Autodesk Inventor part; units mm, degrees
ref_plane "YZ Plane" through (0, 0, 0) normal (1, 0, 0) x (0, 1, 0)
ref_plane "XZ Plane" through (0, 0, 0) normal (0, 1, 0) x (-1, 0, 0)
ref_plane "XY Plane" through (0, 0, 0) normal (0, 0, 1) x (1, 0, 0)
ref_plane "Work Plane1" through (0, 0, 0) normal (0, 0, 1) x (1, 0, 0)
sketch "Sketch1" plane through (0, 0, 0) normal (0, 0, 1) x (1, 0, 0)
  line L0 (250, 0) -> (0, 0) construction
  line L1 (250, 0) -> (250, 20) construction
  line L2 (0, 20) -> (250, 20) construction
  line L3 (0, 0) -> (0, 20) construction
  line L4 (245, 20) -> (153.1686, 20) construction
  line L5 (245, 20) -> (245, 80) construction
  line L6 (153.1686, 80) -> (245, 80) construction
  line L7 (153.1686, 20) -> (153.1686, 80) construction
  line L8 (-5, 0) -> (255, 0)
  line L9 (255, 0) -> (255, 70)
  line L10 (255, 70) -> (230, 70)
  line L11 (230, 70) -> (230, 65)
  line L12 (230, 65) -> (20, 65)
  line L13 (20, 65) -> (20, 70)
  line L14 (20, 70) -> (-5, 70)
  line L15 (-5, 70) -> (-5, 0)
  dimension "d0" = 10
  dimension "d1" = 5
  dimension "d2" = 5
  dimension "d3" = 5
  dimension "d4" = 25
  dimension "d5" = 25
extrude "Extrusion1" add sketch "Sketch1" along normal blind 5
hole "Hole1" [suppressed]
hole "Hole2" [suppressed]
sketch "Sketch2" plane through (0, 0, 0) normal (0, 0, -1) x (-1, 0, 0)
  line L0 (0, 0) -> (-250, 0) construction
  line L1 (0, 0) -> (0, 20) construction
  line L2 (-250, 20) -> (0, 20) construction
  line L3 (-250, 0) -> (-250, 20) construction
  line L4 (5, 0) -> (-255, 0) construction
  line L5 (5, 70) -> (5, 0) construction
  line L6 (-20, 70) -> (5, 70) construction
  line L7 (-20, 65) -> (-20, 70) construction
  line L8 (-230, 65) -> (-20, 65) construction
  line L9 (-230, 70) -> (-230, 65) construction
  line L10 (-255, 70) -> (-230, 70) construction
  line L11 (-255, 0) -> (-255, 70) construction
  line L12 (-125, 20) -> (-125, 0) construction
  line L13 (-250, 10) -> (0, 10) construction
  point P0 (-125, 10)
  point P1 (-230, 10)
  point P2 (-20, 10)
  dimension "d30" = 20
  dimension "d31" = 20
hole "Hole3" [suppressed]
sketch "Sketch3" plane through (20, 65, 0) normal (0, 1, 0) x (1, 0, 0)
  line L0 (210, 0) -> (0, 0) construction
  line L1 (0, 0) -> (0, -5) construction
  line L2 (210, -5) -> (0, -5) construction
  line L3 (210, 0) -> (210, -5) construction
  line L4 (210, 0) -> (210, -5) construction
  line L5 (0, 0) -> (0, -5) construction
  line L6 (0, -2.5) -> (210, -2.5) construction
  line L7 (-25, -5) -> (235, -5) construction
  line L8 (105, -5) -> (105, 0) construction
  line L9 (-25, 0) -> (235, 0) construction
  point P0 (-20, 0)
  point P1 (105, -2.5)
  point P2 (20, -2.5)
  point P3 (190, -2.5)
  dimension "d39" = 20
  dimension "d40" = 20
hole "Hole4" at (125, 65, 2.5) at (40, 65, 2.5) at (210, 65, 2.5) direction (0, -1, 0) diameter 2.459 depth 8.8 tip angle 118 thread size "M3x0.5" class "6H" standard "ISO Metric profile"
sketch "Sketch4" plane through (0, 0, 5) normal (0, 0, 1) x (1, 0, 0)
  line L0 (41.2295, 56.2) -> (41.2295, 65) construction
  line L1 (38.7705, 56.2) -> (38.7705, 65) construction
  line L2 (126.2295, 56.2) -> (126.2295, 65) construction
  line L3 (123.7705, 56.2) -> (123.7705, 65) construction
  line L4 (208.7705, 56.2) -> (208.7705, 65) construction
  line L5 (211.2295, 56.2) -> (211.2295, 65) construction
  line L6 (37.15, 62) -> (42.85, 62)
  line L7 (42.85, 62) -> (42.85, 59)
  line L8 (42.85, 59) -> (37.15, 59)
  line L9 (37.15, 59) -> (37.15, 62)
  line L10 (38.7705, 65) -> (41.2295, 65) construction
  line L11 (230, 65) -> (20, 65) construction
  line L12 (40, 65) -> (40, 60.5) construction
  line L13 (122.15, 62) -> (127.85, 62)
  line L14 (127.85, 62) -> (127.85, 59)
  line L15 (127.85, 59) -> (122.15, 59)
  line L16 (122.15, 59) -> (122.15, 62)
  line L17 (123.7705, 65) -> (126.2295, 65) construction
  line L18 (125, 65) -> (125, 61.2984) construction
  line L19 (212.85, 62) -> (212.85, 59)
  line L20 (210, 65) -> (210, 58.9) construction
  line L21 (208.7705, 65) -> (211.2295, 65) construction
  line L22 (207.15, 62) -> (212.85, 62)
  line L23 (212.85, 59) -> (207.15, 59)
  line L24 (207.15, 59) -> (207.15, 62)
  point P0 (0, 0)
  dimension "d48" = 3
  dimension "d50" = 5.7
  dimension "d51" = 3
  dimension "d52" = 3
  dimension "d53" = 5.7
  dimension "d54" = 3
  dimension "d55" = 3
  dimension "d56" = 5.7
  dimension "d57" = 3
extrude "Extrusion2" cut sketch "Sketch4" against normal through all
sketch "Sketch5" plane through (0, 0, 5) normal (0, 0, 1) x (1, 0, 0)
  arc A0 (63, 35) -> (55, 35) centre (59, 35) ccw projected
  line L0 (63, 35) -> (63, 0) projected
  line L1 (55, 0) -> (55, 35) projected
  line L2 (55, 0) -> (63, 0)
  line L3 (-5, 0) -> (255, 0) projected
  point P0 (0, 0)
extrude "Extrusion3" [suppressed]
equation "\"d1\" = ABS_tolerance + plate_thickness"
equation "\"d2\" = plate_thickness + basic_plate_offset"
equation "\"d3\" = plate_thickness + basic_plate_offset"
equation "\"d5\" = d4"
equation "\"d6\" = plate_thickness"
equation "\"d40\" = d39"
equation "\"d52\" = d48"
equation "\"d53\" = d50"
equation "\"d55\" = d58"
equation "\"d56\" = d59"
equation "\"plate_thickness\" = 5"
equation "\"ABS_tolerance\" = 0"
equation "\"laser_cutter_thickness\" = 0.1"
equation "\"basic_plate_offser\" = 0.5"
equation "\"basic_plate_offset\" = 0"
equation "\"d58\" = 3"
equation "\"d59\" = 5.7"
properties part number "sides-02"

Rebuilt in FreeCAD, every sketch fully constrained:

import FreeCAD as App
import Part
import Sketcher

V = App.Vector

doc = App.newDocument("Part")
body = doc.addObject("PartDesign::Body", "Body")

# Sketch on XY plane
sketch1 = body.newObject("Sketcher::SketchObject", "Sketch")
sketch1.AttachmentSupport = (doc.getObject("XY_Plane"), [""])
sketch1.MapMode = "FlatFace"
sketch1.addGeometry(Part.LineSegment(V(-5, 70, 0), V(-5, 0, 0)), False)
sketch1.addGeometry(Part.LineSegment(V(-5, 0, 0), V(255, 0, 0)), False)
sketch1.addGeometry(Part.LineSegment(V(255, 0, 0), V(255, 70, 0)), False)
sketch1.addGeometry(Part.LineSegment(V(255, 70, 0), V(230, 70, 0)), False)
sketch1.addGeometry(Part.LineSegment(V(230, 70, 0), V(230, 65, 0)), False)
sketch1.addGeometry(Part.LineSegment(V(230, 65, 0), V(20, 65, 0)), False)
sketch1.addGeometry(Part.LineSegment(V(20, 65, 0), V(20, 70, 0)), False)
sketch1.addGeometry(Part.LineSegment(V(20, 70, 0), V(-5, 70, 0)), False)
sketch1.addConstraint(Sketcher.Constraint("Coincident", 0, 2, 1, 1))
sketch1.addConstraint(Sketcher.Constraint("Coincident", 1, 2, 2, 1))
sketch1.addConstraint(Sketcher.Constraint("Coincident", 2, 2, 3, 1))
sketch1.addConstraint(Sketcher.Constraint("Coincident", 3, 2, 4, 1))
sketch1.addConstraint(Sketcher.Constraint("Coincident", 4, 2, 5, 1))
sketch1.addConstraint(Sketcher.Constraint("Coincident", 5, 2, 6, 1))
sketch1.addConstraint(Sketcher.Constraint("Coincident", 6, 2, 7, 1))
sketch1.addConstraint(Sketcher.Constraint("Coincident", 7, 2, 0, 1))
sketch1.addConstraint(Sketcher.Constraint("Vertical", 0))
sketch1.addConstraint(Sketcher.Constraint("Horizontal", 1))
sketch1.addConstraint(Sketcher.Constraint("Vertical", 2))
sketch1.addConstraint(Sketcher.Constraint("Horizontal", 3))
sketch1.addConstraint(Sketcher.Constraint("Vertical", 4))
sketch1.addConstraint(Sketcher.Constraint("Horizontal", 5))
sketch1.addConstraint(Sketcher.Constraint("Vertical", 6))
sketch1.addConstraint(Sketcher.Constraint("Horizontal", 7))
sketch1.addConstraint(Sketcher.Constraint("PointOnObject", 0, 2, -1))
sketch1.addConstraint(Sketcher.Constraint("Horizontal", 3, 2, 6, 2))
sketch1.addConstraint(Sketcher.Constraint("Equal", 3, 7))
sketch1.addConstraint(Sketcher.Constraint("DistanceX", 3, 2, 3, 1, 25.0))
sketch1.addConstraint(Sketcher.Constraint("DistanceY", 4, 2, 4, 1, 5.0))
sketch1.addConstraint(Sketcher.Constraint("DistanceX", 0, 2, -1, 1, 5.0))
sketch1.addConstraint(Sketcher.Constraint("DistanceX", 1, 1, 1, 2, 260.0))
sketch1.addConstraint(Sketcher.Constraint("DistanceY", 0, 2, 0, 1, 70.0))
pad1 = body.newObject("PartDesign::Pad", "Pad")
pad1.Profile = sketch1
pad1.Length = 5

# Sketch on XZ plane
sketch2 = body.newObject("Sketcher::SketchObject", "Sketch001")
sketch2.AttachmentSupport = (doc.getObject("XZ_Plane"), [""])
sketch2.MapMode = "FlatFace"
sketch2.AttachmentOffset = App.Placement(V(0, 0, -65), App.Rotation())
sketch2.addGeometry(Part.Circle(V(125, 2.5, 0), V(0, 0, 1), 1.2), False)
sketch2.addGeometry(Part.Circle(V(40, 2.5, 0), V(0, 0, 1), 1.2), False)
sketch2.addGeometry(Part.Circle(V(210, 2.5, 0), V(0, 0, 1), 1.2), False)
sketch2.addConstraint(Sketcher.Constraint("Equal", 0, 1))
sketch2.addConstraint(Sketcher.Constraint("Equal", 1, 2))
sketch2.addConstraint(Sketcher.Constraint("Horizontal", 0, 3, 1, 3))
sketch2.addConstraint(Sketcher.Constraint("Horizontal", 1, 3, 2, 3))
sketch2.addConstraint(Sketcher.Constraint("Diameter", 0, 2.459))
sketch2.addConstraint(Sketcher.Constraint("DistanceX", -1, 1, 0, 3, 125.0))
sketch2.addConstraint(Sketcher.Constraint("DistanceX", -1, 1, 1, 3, 40.0))
sketch2.addConstraint(Sketcher.Constraint("DistanceX", -1, 1, 2, 3, 210.0))
sketch2.addConstraint(Sketcher.Constraint("DistanceY", -1, 1, 0, 3, 2.5))
doc.recompute()
hole = body.newObject("PartDesign::Hole", "Hole")
hole.Profile = sketch2
hole.ThreadType = "None"
hole.Diameter = 2.459
hole.DepthType = "Dimension"
hole.Depth = 8.8
hole.DrillPoint = "Angled"
hole.DrillPointAngle = 118
hole.Reversed = True

# Sketch on XY plane
sketch3 = body.newObject("Sketcher::SketchObject", "Sketch002")
sketch3.AttachmentSupport = (doc.getObject("XY_Plane"), [""])
sketch3.MapMode = "FlatFace"
sketch3.AttachmentOffset = App.Placement(V(0, 0, 5), App.Rotation())
sketch3.addGeometry(Part.LineSegment(V(42.9, 62, 0), V(37.1, 62, 0)), False)
sketch3.addGeometry(Part.LineSegment(V(37.1, 62, 0), V(37.1, 59, 0)), False)
sketch3.addGeometry(Part.LineSegment(V(37.1, 59, 0), V(42.9, 59, 0)), False)
sketch3.addGeometry(Part.LineSegment(V(42.9, 59, 0), V(42.9, 62, 0)), False)
sketch3.addGeometry(Part.LineSegment(V(127.8, 62, 0), V(122.2, 62, 0)), False)
sketch3.addGeometry(Part.LineSegment(V(122.2, 62, 0), V(122.2, 59, 0)), False)
sketch3.addGeometry(Part.LineSegment(V(122.2, 59, 0), V(127.8, 59, 0)), False)
sketch3.addGeometry(Part.LineSegment(V(127.8, 59, 0), V(127.8, 62, 0)), False)
sketch3.addGeometry(Part.LineSegment(V(212.8, 59, 0), V(212.8, 62, 0)), False)
sketch3.addGeometry(Part.LineSegment(V(212.8, 62, 0), V(207.2, 62, 0)), False)
sketch3.addGeometry(Part.LineSegment(V(207.2, 62, 0), V(207.2, 59, 0)), False)
sketch3.addGeometry(Part.LineSegment(V(207.2, 59, 0), V(212.8, 59, 0)), False)
sketch3.addConstraint(Sketcher.Constraint("Coincident", 0, 2, 1, 1))
sketch3.addConstraint(Sketcher.Constraint("Coincident", 1, 2, 2, 1))
sketch3.addConstraint(Sketcher.Constraint("Coincident", 2, 2, 3, 1))
sketch3.addConstraint(Sketcher.Constraint("Coincident", 3, 2, 0, 1))
sketch3.addConstraint(Sketcher.Constraint("Coincident", 4, 2, 5, 1))
sketch3.addConstraint(Sketcher.Constraint("Coincident", 5, 2, 6, 1))
sketch3.addConstraint(Sketcher.Constraint("Coincident", 6, 2, 7, 1))
sketch3.addConstraint(Sketcher.Constraint("Coincident", 7, 2, 4, 1))
sketch3.addConstraint(Sketcher.Constraint("Coincident", 8, 2, 9, 1))
sketch3.addConstraint(Sketcher.Constraint("Coincident", 9, 2, 10, 1))
sketch3.addConstraint(Sketcher.Constraint("Coincident", 10, 2, 11, 1))
sketch3.addConstraint(Sketcher.Constraint("Coincident", 11, 2, 8, 1))
sketch3.addConstraint(Sketcher.Constraint("Horizontal", 0))
sketch3.addConstraint(Sketcher.Constraint("Vertical", 1))
sketch3.addConstraint(Sketcher.Constraint("Horizontal", 2))
sketch3.addConstraint(Sketcher.Constraint("Vertical", 3))
sketch3.addConstraint(Sketcher.Constraint("Horizontal", 4))
sketch3.addConstraint(Sketcher.Constraint("Vertical", 5))
sketch3.addConstraint(Sketcher.Constraint("Horizontal", 6))
sketch3.addConstraint(Sketcher.Constraint("Vertical", 7))
sketch3.addConstraint(Sketcher.Constraint("Vertical", 8))
sketch3.addConstraint(Sketcher.Constraint("Horizontal", 9))
sketch3.addConstraint(Sketcher.Constraint("Vertical", 10))
sketch3.addConstraint(Sketcher.Constraint("Horizontal", 11))
sketch3.addConstraint(Sketcher.Constraint("Horizontal", 3, 2, 4, 2))
sketch3.addConstraint(Sketcher.Constraint("Horizontal", 2, 2, 5, 2))
sketch3.addConstraint(Sketcher.Constraint("Horizontal", 7, 2, 8, 2))
sketch3.addConstraint(Sketcher.Constraint("Horizontal", 6, 2, 10, 2))
sketch3.addConstraint(Sketcher.Constraint("Equal", 2, 4))
sketch3.addConstraint(Sketcher.Constraint("Equal", 6, 9))
sketch3.addConstraint(Sketcher.Constraint("DistanceY", 1, 2, 1, 1, 3.0))
sketch3.addConstraint(Sketcher.Constraint("DistanceX", 0, 2, 0, 1, 5.7))
sketch3.addConstraint(Sketcher.Constraint("DistanceY", -1, 1, 0, 2, 62.0))
sketch3.addConstraint(Sketcher.Constraint("DistanceX", 0, 2, 4, 2, 85.0))
sketch3.addConstraint(Sketcher.Constraint("DistanceX", 7, 2, 8, 2, 85.0))
sketch3.addConstraint(Sketcher.Constraint("DistanceX", -1, 1, 0, 2, 37.15))
pocket1 = body.newObject("PartDesign::Pocket", "Pocket")
pocket1.Profile = sketch3
pocket1.Type = "ThroughAll"

doc.recompute()
